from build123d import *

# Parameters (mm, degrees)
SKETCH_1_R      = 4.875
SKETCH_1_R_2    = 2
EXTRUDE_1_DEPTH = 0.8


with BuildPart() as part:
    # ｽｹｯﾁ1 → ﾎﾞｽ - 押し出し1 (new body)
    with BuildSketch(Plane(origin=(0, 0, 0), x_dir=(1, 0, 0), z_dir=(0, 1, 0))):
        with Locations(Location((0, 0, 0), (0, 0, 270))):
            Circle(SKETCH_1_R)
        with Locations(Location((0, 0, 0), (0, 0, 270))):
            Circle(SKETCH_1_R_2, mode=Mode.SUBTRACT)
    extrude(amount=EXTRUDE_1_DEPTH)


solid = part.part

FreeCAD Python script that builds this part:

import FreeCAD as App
import Part
import Sketcher
Q = App.Units.Quantity

doc = App.newDocument("Part")
body = doc.addObject("PartDesign::Body", "Body")

sketch1 = body.newObject("Sketcher::SketchObject", "Sketch")
sketch1.AttachmentSupport = (doc.getObject("XZ_Plane"), [""])
sketch1.MapMode = "FlatFace"
sketch1.addGeometry([
    Part.Circle(App.Vector(0, 0, 0), App.Vector(0, 0, 1), 4.9),
    Part.Circle(App.Vector(0, 0, 0), App.Vector(0, 0, 1), 2),
], False)
sketch1.addConstraint([
    Sketcher.Constraint("Coincident", 0, 3, -1, 1),
    Sketcher.Constraint("Coincident", 1, 3, -1, 1),
    Sketcher.Constraint("Diameter", 1, Q("4 mm")),
    Sketcher.Constraint("Diameter", 0, Q("9.75 mm")),
])
pad1 = body.newObject("PartDesign::Pad", "Pad")
pad1.Profile = sketch1
pad1.Length = 0.8
pad1.Reversed = True

doc.recompute()
